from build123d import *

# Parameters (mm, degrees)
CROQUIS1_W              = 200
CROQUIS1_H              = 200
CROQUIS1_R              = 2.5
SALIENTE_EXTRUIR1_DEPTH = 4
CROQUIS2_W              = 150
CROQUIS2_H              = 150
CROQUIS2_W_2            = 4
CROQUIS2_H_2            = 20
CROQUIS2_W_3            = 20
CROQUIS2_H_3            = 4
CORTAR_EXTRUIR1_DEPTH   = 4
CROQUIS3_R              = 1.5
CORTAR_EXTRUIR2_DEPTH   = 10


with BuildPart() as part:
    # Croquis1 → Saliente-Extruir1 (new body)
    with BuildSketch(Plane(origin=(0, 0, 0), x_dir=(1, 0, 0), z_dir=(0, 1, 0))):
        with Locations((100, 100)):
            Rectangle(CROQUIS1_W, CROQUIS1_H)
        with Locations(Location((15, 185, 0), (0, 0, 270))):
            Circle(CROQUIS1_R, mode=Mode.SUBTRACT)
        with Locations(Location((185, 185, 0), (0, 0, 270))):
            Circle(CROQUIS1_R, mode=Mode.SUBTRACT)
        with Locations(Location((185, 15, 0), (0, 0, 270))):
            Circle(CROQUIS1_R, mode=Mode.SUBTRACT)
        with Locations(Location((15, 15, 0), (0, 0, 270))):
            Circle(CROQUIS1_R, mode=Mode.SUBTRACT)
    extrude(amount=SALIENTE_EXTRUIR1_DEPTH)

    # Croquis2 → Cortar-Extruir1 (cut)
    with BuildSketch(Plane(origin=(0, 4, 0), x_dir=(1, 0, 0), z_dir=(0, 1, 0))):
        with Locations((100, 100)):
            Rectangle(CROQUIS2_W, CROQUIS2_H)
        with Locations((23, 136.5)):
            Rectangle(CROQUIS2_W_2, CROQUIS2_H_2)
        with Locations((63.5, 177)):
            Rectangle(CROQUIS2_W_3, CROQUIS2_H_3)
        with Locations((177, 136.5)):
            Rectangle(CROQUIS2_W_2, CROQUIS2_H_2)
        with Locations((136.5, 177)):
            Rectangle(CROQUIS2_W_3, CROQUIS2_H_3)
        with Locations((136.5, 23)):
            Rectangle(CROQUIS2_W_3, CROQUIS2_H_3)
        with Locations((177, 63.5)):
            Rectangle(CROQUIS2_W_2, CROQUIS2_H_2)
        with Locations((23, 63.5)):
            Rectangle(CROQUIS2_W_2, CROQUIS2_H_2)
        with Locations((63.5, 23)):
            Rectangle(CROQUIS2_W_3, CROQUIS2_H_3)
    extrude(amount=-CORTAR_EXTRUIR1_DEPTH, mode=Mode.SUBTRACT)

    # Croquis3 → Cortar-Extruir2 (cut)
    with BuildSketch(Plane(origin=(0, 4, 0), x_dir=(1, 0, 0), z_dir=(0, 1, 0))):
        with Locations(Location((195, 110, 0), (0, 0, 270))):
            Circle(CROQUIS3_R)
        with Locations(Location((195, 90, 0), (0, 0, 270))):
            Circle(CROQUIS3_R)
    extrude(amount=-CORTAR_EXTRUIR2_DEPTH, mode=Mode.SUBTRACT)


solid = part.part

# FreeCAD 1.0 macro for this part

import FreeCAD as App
import Part
import Sketcher
Q = App.Units.Quantity


def add_polygon(sketch, points):
    """Adds a closed chain of lines whose ends are joined by coincident constraints."""
    first, n = sketch.GeometryCount, len(points)
    for a, b in zip(points, points[1:] + points[:1]):
        sketch.addGeometry(Part.LineSegment(App.Vector(*a, 0), App.Vector(*b, 0)), False)
    for i in range(n):
        sketch.addConstraint(Sketcher.Constraint("Coincident", first + i, 2, first + (i + 1) % n, 1))

doc = App.newDocument("Part")
body = doc.addObject("PartDesign::Body", "Body")

# Sketch on XZ plane
sketch1 = body.newObject("Sketcher::SketchObject", "Sketch")
sketch1.AttachmentSupport = (doc.getObject("XZ_Plane"), [""])
sketch1.MapMode = "FlatFace"
add_polygon(sketch1, [(0, -200), (0, 0), (200, 0), (200, -200)])  # lines 0-3
sketch1.addGeometry(Part.Circle(App.Vector(15, -15, 0), App.Vector(0, 0, 1), 2.5), False)  # 4
sketch1.addGeometry(Part.Circle(App.Vector(185, -15, 0), App.Vector(0, 0, 1), 2.5), False)  # 5
sketch1.addGeometry(Part.Circle(App.Vector(15, -185, 0), App.Vector(0, 0, 1), 2.5), False)  # 6
sketch1.addGeometry(Part.Circle(App.Vector(185, -185, 0), App.Vector(0, 0, 1), 2.5), False)  # 7
sketch1.addConstraint([
    Sketcher.Constraint("Vertical", 0),
    Sketcher.Constraint("Horizontal", 1),
    Sketcher.Constraint("Vertical", 2),
    Sketcher.Constraint("Horizontal", 3),
    Sketcher.Constraint("Coincident", 0, 2, -1, 1),
    Sketcher.Constraint("Equal", 4, 5),
    Sketcher.Constraint("Equal", 5, 6),
    Sketcher.Constraint("Equal", 6, 7),
    Sketcher.Constraint("Horizontal", 4, 3, 5, 3),
    Sketcher.Constraint("Horizontal", 6, 3, 7, 3),
    Sketcher.Constraint("Vertical", 4, 3, 6, 3),
    Sketcher.Constraint("Vertical", 5, 3, 7, 3),
    Sketcher.Constraint("Equal", 3, 0),
    Sketcher.Constraint("Diameter", 4, Q("5 mm")),
    Sketcher.Constraint("DistanceX", 1, 1, 1, 2, Q("200 mm")),
    Sketcher.Constraint("DistanceX", -1, 1, 4, 3, Q("15 mm")),
    Sketcher.Constraint("DistanceY", 4, 3, -1, 1, Q("15 mm")),
    Sketcher.Constraint("DistanceX", -1, 1, 5, 3, Q("185 mm")),
    Sketcher.Constraint("DistanceY", 6, 3, -1, 1, Q("185 mm")),
])
pad1 = body.newObject("PartDesign::Pad", "Pad")
pad1.Profile = sketch1
pad1.Length = 4
pad1.Reversed = True

# Sketch on XZ plane
sketch2 = body.newObject("Sketcher::SketchObject", "Sketch001")
sketch2.AttachmentSupport = (doc.getObject("XZ_Plane"), [""])
sketch2.MapMode = "FlatFace"
sketch2.AttachmentOffset = App.Placement(App.Vector(0, 0, -4), App.Rotation())
add_polygon(sketch2, [(25, -53.5), (25, -25), (53.5, -25), (53.5, -21), (73.5, -21), (73.5, -25), (126.5, -25), (126.5, -21), (146.5, -21), (146.5, -25), (175, -25), (175, -53.5), (179, -53.5), (179, -73.5), (175, -73.5), (175, -126.5), (179, -126.5), (179, -146.5), (175, -146.5), (175, -175), (146.5, -175), (146.5, -179), (126.5, -179), (126.5, -175), (73.5, -175), (73.5, -179), (53.5, -179), (53.5, -175), (25, -175), (25, -146.5), (21, -146.5), (21, -126.5), (25, -126.5), (25, -73.5), (21, -73.5), (21, -53.5)])  # lines 0-35
sketch2.addConstraint([
    Sketcher.Constraint("Vertical", 0),
    Sketcher.Constraint("Horizontal", 1),
    Sketcher.Constraint("Vertical", 2),
    Sketcher.Constraint("Horizontal", 3),
    Sketcher.Constraint("Vertical", 4),
    Sketcher.Constraint("Horizontal", 5),
    Sketcher.Constraint("Vertical", 6),
    Sketcher.Constraint("Horizontal", 7),
    Sketcher.Constraint("Vertical", 8),
    Sketcher.Constraint("Horizontal", 9),
    Sketcher.Constraint("Vertical", 10),
    Sketcher.Constraint("Horizontal", 11),
    Sketcher.Constraint("Vertical", 12),
    Sketcher.Constraint("Horizontal", 13),
    Sketcher.Constraint("Vertical", 14),
    Sketcher.Constraint("Horizontal", 15),
    Sketcher.Constraint("Vertical", 16),
    Sketcher.Constraint("Horizontal", 17),
    Sketcher.Constraint("Vertical", 18),
    Sketcher.Constraint("Horizontal", 19),
    Sketcher.Constraint("Vertical", 20),
    Sketcher.Constraint("Horizontal", 21),
    Sketcher.Constraint("Vertical", 22),
    Sketcher.Constraint("Horizontal", 23),
    Sketcher.Constraint("Vertical", 24),
    Sketcher.Constraint("Horizontal", 25),
    Sketcher.Constraint("Vertical", 26),
    Sketcher.Constraint("Horizontal", 27),
    Sketcher.Constraint("Vertical", 28),
    Sketcher.Constraint("Horizontal", 29),
    Sketcher.Constraint("Vertical", 30),
    Sketcher.Constraint("Horizontal", 31),
    Sketcher.Constraint("Vertical", 32),
    Sketcher.Constraint("Horizontal", 33),
    Sketcher.Constraint("Vertical", 34),
    Sketcher.Constraint("Horizontal", 35),
    Sketcher.Constraint("Horizontal", 1, 2, 4, 2),
    Sketcher.Constraint("Horizontal", 3, 2, 6, 2),
    Sketcher.Constraint("Horizontal", 5, 2, 8, 2),
    Sketcher.Constraint("Horizontal", 19, 2, 22, 2),
    Sketcher.Constraint("Horizontal", 21, 2, 24, 2),
    Sketcher.Constraint("Horizontal", 23, 2, 26, 2),
    Sketcher.Constraint("Horizontal", 17, 2, 28, 2),
    Sketcher.Constraint("Horizontal", 15, 2, 30, 2),
    Sketcher.Constraint("Horizontal", 13, 2, 32, 2),
    Sketcher.Constraint("Horizontal", 11, 2, 34, 2),
    Sketcher.Constraint("Vertical", 10, 2, 13, 2),
    Sketcher.Constraint("Vertical", 12, 2, 15, 2),
    Sketcher.Constraint("Vertical", 14, 2, 17, 2),
    Sketcher.Constraint("Vertical", 8, 2, 19, 2),
    Sketcher.Constraint("Vertical", 6, 2, 21, 2),
    Sketcher.Constraint("Vertical", 4, 2, 23, 2),
    Sketcher.Constraint("Vertical", 2, 2, 25, 2),
    Sketcher.Constraint("Vertical", 0, 2, 27, 2),
    Sketcher.Constraint("Vertical", 28, 2, 31, 2),
    Sketcher.Constraint("Vertical", 30, 2, 33, 2),
    Sketcher.Constraint("Equal", 3, 7),
    Sketcher.Constraint("Equal", 1, 9),
    Sketcher.Constraint("Equal", 17, 29),
    Sketcher.Constraint("Equal", 27, 0),
    Sketcher.Constraint("Equal", 35, 2),
    Sketcher.Constraint("Equal", 25, 12),
    Sketcher.Constraint("Equal", 23, 14),
    Sketcher.Constraint("Equal", 12, 16),
    Sketcher.Constraint("Equal", 10, 18),
    Sketcher.Constraint("Equal", 8, 20),
    Sketcher.Constraint("DistanceX", 3, 1, 3, 2, Q("20 mm")),
    Sketcher.Constraint("DistanceX", 5, 1, 5, 2, Q("53 mm")),
    Sketcher.Constraint("DistanceX", 11, 1, 11, 2, Q("4 mm")),
    Sketcher.Constraint("DistanceX", 1, 1, 1, 2, Q("28.5 mm")),
    Sketcher.Constraint("DistanceX", -1, 1, 0, 2, Q("25 mm")),
    Sketcher.Constraint("DistanceY", 0, 2, -1, 1, Q("25 mm")),
])
pocket1 = body.newObject("PartDesign::Pocket", "Pocket")
pocket1.Profile = sketch2
pocket1.Length = 4
pocket1.Reversed = True

# Sketch on XZ plane
sketch3 = body.newObject("Sketcher::SketchObject", "Sketch002")
sketch3.AttachmentSupport = (doc.getObject("XZ_Plane"), [""])
sketch3.MapMode = "FlatFace"
sketch3.AttachmentOffset = App.Placement(App.Vector(0, 0, -4), App.Rotation())
sketch3.addGeometry([
    Part.Circle(App.Vector(195, -110, 0), App.Vector(0, 0, 1), 1.5),
    Part.Circle(App.Vector(195, -90, 0), App.Vector(0, 0, 1), 1.5),
], False)
sketch3.addConstraint([
    Sketcher.Constraint("Equal", 0, 1),
    Sketcher.Constraint("Vertical", 0, 3, 1, 3),
    Sketcher.Constraint("Diameter", 0, Q("3 mm")),
    Sketcher.Constraint("DistanceX", -1, 1, 0, 3, Q("195 mm")),
    Sketcher.Constraint("DistanceY", 0, 3, -1, 1, Q("110 mm")),
    Sketcher.Constraint("DistanceY", 1, 3, -1, 1, Q("90 mm")),
])
pocket2 = body.newObject("PartDesign::Pocket", "Pocket001")
pocket2.Profile = sketch3
pocket2.Length = 10
pocket2.Reversed = True

doc.recompute()
